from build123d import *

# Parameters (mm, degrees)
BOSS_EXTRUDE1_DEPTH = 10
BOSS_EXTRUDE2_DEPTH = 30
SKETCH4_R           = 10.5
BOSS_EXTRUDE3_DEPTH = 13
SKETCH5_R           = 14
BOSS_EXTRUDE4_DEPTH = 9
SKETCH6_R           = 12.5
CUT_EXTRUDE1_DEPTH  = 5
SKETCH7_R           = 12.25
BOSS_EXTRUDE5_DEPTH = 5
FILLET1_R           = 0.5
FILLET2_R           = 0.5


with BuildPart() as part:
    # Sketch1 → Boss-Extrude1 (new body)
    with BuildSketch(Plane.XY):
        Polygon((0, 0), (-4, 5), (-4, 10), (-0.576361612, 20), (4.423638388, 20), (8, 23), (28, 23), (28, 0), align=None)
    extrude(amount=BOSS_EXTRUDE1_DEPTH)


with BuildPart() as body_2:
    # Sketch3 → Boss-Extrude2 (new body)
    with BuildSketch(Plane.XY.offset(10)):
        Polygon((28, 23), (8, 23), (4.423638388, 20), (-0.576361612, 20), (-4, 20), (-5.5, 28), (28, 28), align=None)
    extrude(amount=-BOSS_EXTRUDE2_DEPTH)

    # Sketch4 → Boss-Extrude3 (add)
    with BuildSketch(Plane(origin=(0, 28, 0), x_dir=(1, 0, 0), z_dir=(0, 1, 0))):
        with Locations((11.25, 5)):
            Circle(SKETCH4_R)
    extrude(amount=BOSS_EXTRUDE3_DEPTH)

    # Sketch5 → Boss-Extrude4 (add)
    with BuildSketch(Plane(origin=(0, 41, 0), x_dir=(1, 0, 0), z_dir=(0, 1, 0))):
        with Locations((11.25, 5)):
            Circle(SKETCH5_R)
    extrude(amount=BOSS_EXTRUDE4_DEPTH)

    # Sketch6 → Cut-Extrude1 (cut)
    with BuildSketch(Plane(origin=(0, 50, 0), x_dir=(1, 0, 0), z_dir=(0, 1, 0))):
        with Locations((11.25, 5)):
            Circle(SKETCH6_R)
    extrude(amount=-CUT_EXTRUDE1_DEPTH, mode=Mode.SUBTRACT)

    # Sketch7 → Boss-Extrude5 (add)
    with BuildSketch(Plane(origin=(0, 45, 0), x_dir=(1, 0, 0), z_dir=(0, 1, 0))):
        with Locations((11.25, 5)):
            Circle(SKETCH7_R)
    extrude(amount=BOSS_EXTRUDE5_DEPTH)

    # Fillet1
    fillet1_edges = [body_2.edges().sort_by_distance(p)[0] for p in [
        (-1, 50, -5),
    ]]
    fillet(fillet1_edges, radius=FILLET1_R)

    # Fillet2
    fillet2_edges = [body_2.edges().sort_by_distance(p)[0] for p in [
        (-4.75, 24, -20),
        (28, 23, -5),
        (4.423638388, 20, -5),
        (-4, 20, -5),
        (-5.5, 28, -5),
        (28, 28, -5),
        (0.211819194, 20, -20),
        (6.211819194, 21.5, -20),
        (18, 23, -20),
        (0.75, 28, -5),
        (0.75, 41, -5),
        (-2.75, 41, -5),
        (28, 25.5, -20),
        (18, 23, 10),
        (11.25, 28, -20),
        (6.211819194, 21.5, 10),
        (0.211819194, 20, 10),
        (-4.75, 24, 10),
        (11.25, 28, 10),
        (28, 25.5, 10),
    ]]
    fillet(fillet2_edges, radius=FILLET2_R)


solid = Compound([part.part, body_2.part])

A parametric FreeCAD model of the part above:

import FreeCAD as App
import Part
import Sketcher

V = App.Vector
Q = App.Units.Quantity


def edges_at(feature, points):
    """Names of the edges that pass closest to the given points."""
    edges = feature.Shape.Edges
    near = lambda p: min(range(len(edges)), key=lambda i: edges[i].distToShape(Part.Vertex(*p))[0])
    return sorted({f"Edge{near(p) + 1}" for p in points})


def add_polygon(sketch, points):
    """Adds a closed chain of lines whose ends are joined by coincident constraints."""
    first, n = sketch.GeometryCount, len(points)
    for a, b in zip(points, points[1:] + points[:1]):
        sketch.addGeometry(Part.LineSegment(App.Vector(*a, 0), App.Vector(*b, 0)), False)
    for i in range(n):
        sketch.addConstraint(Sketcher.Constraint("Coincident", first + i, 2, first + (i + 1) % n, 1))

doc = App.newDocument("Part")
body = doc.addObject("PartDesign::Body", "Body")

sketch1 = doc.addObject("Sketcher::SketchObject", "Sketch")
body.addObject(sketch1)
sketch1.AttachmentSupport = (doc.XY_Plane, [""])
sketch1.MapMode = "FlatFace"
add_polygon(sketch1, [(-4, 5), (0, 0), (28, 0), (28, 23), (8, 23), (4.4, 20), (-0.6, 20), (-4, 10)])
sketch1.addConstraint(Sketcher.Constraint("Horizontal", 1))
sketch1.addConstraint(Sketcher.Constraint("Vertical", 2))
sketch1.addConstraint(Sketcher.Constraint("Horizontal", 3))
sketch1.addConstraint(Sketcher.Constraint("Horizontal", 5))
sketch1.addConstraint(Sketcher.Constraint("Vertical", 7))
sketch1.addConstraint(Sketcher.Constraint("Coincident", 0, 2, -1, 1))
sketch1.addConstraint(Sketcher.Constraint("Equal", 5, 7))
sketch1.addConstraint(Sketcher.Constraint("DistanceX", 1, 1, 1, 2, Q("28 mm")))
sketch1.addConstraint(Sketcher.Constraint("DistanceX", 3, 2, 3, 1, Q("20 mm")))
sketch1.addConstraint(Sketcher.Constraint("DistanceX", 5, 2, 5, 1, Q("5 mm")))
sketch1.addConstraint(Sketcher.Constraint("DistanceY", 2, 1, 2, 2, Q("23 mm")))
sketch1.addConstraint(Sketcher.Constraint("DistanceY", -1, 1, 4, 2, Q("20 mm")))
sketch1.addConstraint(Sketcher.Constraint("DistanceX", 6, 2, -1, 1, Q("4 mm")))
sketch1.addConstraint(Sketcher.Constraint("DistanceY", -1, 1, 6, 2, Q("10 mm")))
sketch1.addConstraint(Sketcher.Constraint("Distance", 6, Q("10.56983 mm")))
pad1 = doc.addObject("PartDesign::Pad", "Pad")
body.addObject(pad1)
pad1.Profile = sketch1
pad1.Length = 10
body2 = doc.addObject("PartDesign::Body", "Body001")

sketch2 = doc.addObject("Sketcher::SketchObject", "Sketch001")
body2.addObject(sketch2)
sketch2.AttachmentSupport = (doc.getObject("XY_Plane001"), [""])
sketch2.MapMode = "FlatFace"
sketch2.AttachmentOffset = App.Placement(V(0, 0, 10), App.Rotation())
add_polygon(sketch2, [(8, 23), (28, 23), (28, 28), (-5.5, 28), (-4, 20), (4.4, 20)])
sketch2.addConstraint(Sketcher.Constraint("Horizontal", 0))
sketch2.addConstraint(Sketcher.Constraint("Vertical", 1))
sketch2.addConstraint(Sketcher.Constraint("Horizontal", 2))
sketch2.addConstraint(Sketcher.Constraint("Horizontal", 4))
sketch2.addConstraint(Sketcher.Constraint("DistanceX", 0, 1, 0, 2, Q("20 mm")))
sketch2.addConstraint(Sketcher.Constraint("DistanceY", 1, 1, 1, 2, Q("5 mm")))
sketch2.addConstraint(Sketcher.Constraint("DistanceX", 2, 2, 2, 1, Q("33.5 mm")))
sketch2.addConstraint(Sketcher.Constraint("DistanceX", -1, 1, 0, 2, Q("28 mm")))
sketch2.addConstraint(Sketcher.Constraint("DistanceY", -1, 1, 0, 2, Q("23 mm")))
sketch2.addConstraint(Sketcher.Constraint("DistanceX", 3, 2, -1, 1, Q("4 mm")))
sketch2.addConstraint(Sketcher.Constraint("DistanceY", -1, 1, 3, 2, Q("20 mm")))
sketch2.addConstraint(Sketcher.Constraint("DistanceX", 4, 1, 4, 2, Q("8.423638 mm")))
pad2 = doc.addObject("PartDesign::Pad", "Pad001")
body2.addObject(pad2)
pad2.Profile = sketch2
pad2.Length = 30
pad2.Reversed = True

sketch3 = doc.addObject("Sketcher::SketchObject", "Sketch002")
body2.addObject(sketch3)
sketch3.AttachmentSupport = (doc.getObject("XZ_Plane001"), [""])
sketch3.MapMode = "FlatFace"
sketch3.AttachmentOffset = App.Placement(V(0, 0, -28), App.Rotation())
sketch3.addGeometry(Part.Circle(V(11, -5, 0), V(0, 0, 1), 10), False)
sketch3.addConstraint(Sketcher.Constraint("Diameter", 0, Q("21 mm")))
sketch3.addConstraint(Sketcher.Constraint("DistanceY", 0, 3, -1, 1, Q("5 mm")))
sketch3.addConstraint(Sketcher.Constraint("DistanceX", -1, 1, 0, 3, Q("11.25 mm")))
pad3 = doc.addObject("PartDesign::Pad", "Pad002")
body2.addObject(pad3)
pad3.Profile = sketch3
pad3.Length = 13
pad3.Reversed = True

sketch4 = doc.addObject("Sketcher::SketchObject", "Sketch003")
body2.addObject(sketch4)
sketch4.AttachmentSupport = (doc.getObject("XZ_Plane001"), [""])
sketch4.MapMode = "FlatFace"
sketch4.AttachmentOffset = App.Placement(V(0, 0, -41), App.Rotation())
sketch4.addGeometry(Part.Circle(V(11, -5, 0), V(0, 0, 1), 14), False)
sketch4.addConstraint(Sketcher.Constraint("Diameter", 0, Q("28 mm")))
sketch4.addConstraint(Sketcher.Constraint("DistanceY", 0, 3, -1, 1, Q("5 mm")))
sketch4.addConstraint(Sketcher.Constraint("DistanceX", -1, 1, 0, 3, Q("11.25 mm")))
pad4 = doc.addObject("PartDesign::Pad", "Pad003")
body2.addObject(pad4)
pad4.Profile = sketch4
pad4.Length = 9
pad4.Reversed = True

sketch5 = doc.addObject("Sketcher::SketchObject", "Sketch004")
body2.addObject(sketch5)
sketch5.AttachmentSupport = (doc.getObject("XZ_Plane001"), [""])
sketch5.MapMode = "FlatFace"
sketch5.AttachmentOffset = App.Placement(V(0, 0, -50), App.Rotation())
sketch5.addGeometry(Part.Circle(V(11, -5, 0), V(0, 0, 1), 12), False)
sketch5.addConstraint(Sketcher.Constraint("Diameter", 0, Q("25 mm")))
sketch5.addConstraint(Sketcher.Constraint("DistanceY", 0, 3, -1, 1, Q("5 mm")))
sketch5.addConstraint(Sketcher.Constraint("DistanceX", -1, 1, 0, 3, Q("11.25 mm")))
pocket1 = doc.addObject("PartDesign::Pocket", "Pocket")
body2.addObject(pocket1)
pocket1.Profile = sketch5
pocket1.Length = 5
pocket1.Reversed = True

sketch6 = doc.addObject("Sketcher::SketchObject", "Sketch005")
body2.addObject(sketch6)
sketch6.AttachmentSupport = (doc.getObject("XZ_Plane001"), [""])
sketch6.MapMode = "FlatFace"
sketch6.AttachmentOffset = App.Placement(V(0, 0, -45), App.Rotation())
sketch6.addGeometry(Part.Circle(V(11, -5, 0), V(0, 0, 1), 12), False)
sketch6.addConstraint(Sketcher.Constraint("Diameter", 0, Q("24.5 mm")))
sketch6.addConstraint(Sketcher.Constraint("DistanceY", 0, 3, -1, 1, Q("5 mm")))
sketch6.addConstraint(Sketcher.Constraint("DistanceX", -1, 1, 0, 3, Q("11.25 mm")))
pad5 = doc.addObject("PartDesign::Pad", "Pad004")
body2.addObject(pad5)
pad5.Profile = sketch6
pad5.Length = 5
pad5.Reversed = True
doc.recompute()

fillet = doc.addObject("PartDesign::Fillet", "Fillet")
body2.addObject(fillet)
fillet.Base = (pad5, edges_at(pad5, [(-1, 50, -5)]))
fillet.Radius = 0.5
doc.recompute()

fillet2 = doc.addObject("PartDesign::Fillet", "Fillet001")
body2.addObject(fillet2)
fillet2.Base = (fillet, edges_at(fillet, [
    (-4.75, 24, -20),
    (28, 23, -5),
    (4.424, 20, -5),
    (-4, 20, -5),
    (-5.5, 28, -5),
    (28, 28, -5),
    (0.212, 20, -20),
    (6.212, 21.5, -20),
    (18, 23, -20),
    (0.75, 28, -5),
    (0.75, 41, -5),
    (-2.75, 41, -5),
    (28, 25.5, -20),
    (18, 23, 10),
    (11.25, 28, -20),
    (6.212, 21.5, 10),
    (0.212, 20, 10),
    (-4.75, 24, 10),
    (11.25, 28, 10),
    (28, 25.5, 10),
]))
fillet2.Radius = 0.5

doc.recompute()
